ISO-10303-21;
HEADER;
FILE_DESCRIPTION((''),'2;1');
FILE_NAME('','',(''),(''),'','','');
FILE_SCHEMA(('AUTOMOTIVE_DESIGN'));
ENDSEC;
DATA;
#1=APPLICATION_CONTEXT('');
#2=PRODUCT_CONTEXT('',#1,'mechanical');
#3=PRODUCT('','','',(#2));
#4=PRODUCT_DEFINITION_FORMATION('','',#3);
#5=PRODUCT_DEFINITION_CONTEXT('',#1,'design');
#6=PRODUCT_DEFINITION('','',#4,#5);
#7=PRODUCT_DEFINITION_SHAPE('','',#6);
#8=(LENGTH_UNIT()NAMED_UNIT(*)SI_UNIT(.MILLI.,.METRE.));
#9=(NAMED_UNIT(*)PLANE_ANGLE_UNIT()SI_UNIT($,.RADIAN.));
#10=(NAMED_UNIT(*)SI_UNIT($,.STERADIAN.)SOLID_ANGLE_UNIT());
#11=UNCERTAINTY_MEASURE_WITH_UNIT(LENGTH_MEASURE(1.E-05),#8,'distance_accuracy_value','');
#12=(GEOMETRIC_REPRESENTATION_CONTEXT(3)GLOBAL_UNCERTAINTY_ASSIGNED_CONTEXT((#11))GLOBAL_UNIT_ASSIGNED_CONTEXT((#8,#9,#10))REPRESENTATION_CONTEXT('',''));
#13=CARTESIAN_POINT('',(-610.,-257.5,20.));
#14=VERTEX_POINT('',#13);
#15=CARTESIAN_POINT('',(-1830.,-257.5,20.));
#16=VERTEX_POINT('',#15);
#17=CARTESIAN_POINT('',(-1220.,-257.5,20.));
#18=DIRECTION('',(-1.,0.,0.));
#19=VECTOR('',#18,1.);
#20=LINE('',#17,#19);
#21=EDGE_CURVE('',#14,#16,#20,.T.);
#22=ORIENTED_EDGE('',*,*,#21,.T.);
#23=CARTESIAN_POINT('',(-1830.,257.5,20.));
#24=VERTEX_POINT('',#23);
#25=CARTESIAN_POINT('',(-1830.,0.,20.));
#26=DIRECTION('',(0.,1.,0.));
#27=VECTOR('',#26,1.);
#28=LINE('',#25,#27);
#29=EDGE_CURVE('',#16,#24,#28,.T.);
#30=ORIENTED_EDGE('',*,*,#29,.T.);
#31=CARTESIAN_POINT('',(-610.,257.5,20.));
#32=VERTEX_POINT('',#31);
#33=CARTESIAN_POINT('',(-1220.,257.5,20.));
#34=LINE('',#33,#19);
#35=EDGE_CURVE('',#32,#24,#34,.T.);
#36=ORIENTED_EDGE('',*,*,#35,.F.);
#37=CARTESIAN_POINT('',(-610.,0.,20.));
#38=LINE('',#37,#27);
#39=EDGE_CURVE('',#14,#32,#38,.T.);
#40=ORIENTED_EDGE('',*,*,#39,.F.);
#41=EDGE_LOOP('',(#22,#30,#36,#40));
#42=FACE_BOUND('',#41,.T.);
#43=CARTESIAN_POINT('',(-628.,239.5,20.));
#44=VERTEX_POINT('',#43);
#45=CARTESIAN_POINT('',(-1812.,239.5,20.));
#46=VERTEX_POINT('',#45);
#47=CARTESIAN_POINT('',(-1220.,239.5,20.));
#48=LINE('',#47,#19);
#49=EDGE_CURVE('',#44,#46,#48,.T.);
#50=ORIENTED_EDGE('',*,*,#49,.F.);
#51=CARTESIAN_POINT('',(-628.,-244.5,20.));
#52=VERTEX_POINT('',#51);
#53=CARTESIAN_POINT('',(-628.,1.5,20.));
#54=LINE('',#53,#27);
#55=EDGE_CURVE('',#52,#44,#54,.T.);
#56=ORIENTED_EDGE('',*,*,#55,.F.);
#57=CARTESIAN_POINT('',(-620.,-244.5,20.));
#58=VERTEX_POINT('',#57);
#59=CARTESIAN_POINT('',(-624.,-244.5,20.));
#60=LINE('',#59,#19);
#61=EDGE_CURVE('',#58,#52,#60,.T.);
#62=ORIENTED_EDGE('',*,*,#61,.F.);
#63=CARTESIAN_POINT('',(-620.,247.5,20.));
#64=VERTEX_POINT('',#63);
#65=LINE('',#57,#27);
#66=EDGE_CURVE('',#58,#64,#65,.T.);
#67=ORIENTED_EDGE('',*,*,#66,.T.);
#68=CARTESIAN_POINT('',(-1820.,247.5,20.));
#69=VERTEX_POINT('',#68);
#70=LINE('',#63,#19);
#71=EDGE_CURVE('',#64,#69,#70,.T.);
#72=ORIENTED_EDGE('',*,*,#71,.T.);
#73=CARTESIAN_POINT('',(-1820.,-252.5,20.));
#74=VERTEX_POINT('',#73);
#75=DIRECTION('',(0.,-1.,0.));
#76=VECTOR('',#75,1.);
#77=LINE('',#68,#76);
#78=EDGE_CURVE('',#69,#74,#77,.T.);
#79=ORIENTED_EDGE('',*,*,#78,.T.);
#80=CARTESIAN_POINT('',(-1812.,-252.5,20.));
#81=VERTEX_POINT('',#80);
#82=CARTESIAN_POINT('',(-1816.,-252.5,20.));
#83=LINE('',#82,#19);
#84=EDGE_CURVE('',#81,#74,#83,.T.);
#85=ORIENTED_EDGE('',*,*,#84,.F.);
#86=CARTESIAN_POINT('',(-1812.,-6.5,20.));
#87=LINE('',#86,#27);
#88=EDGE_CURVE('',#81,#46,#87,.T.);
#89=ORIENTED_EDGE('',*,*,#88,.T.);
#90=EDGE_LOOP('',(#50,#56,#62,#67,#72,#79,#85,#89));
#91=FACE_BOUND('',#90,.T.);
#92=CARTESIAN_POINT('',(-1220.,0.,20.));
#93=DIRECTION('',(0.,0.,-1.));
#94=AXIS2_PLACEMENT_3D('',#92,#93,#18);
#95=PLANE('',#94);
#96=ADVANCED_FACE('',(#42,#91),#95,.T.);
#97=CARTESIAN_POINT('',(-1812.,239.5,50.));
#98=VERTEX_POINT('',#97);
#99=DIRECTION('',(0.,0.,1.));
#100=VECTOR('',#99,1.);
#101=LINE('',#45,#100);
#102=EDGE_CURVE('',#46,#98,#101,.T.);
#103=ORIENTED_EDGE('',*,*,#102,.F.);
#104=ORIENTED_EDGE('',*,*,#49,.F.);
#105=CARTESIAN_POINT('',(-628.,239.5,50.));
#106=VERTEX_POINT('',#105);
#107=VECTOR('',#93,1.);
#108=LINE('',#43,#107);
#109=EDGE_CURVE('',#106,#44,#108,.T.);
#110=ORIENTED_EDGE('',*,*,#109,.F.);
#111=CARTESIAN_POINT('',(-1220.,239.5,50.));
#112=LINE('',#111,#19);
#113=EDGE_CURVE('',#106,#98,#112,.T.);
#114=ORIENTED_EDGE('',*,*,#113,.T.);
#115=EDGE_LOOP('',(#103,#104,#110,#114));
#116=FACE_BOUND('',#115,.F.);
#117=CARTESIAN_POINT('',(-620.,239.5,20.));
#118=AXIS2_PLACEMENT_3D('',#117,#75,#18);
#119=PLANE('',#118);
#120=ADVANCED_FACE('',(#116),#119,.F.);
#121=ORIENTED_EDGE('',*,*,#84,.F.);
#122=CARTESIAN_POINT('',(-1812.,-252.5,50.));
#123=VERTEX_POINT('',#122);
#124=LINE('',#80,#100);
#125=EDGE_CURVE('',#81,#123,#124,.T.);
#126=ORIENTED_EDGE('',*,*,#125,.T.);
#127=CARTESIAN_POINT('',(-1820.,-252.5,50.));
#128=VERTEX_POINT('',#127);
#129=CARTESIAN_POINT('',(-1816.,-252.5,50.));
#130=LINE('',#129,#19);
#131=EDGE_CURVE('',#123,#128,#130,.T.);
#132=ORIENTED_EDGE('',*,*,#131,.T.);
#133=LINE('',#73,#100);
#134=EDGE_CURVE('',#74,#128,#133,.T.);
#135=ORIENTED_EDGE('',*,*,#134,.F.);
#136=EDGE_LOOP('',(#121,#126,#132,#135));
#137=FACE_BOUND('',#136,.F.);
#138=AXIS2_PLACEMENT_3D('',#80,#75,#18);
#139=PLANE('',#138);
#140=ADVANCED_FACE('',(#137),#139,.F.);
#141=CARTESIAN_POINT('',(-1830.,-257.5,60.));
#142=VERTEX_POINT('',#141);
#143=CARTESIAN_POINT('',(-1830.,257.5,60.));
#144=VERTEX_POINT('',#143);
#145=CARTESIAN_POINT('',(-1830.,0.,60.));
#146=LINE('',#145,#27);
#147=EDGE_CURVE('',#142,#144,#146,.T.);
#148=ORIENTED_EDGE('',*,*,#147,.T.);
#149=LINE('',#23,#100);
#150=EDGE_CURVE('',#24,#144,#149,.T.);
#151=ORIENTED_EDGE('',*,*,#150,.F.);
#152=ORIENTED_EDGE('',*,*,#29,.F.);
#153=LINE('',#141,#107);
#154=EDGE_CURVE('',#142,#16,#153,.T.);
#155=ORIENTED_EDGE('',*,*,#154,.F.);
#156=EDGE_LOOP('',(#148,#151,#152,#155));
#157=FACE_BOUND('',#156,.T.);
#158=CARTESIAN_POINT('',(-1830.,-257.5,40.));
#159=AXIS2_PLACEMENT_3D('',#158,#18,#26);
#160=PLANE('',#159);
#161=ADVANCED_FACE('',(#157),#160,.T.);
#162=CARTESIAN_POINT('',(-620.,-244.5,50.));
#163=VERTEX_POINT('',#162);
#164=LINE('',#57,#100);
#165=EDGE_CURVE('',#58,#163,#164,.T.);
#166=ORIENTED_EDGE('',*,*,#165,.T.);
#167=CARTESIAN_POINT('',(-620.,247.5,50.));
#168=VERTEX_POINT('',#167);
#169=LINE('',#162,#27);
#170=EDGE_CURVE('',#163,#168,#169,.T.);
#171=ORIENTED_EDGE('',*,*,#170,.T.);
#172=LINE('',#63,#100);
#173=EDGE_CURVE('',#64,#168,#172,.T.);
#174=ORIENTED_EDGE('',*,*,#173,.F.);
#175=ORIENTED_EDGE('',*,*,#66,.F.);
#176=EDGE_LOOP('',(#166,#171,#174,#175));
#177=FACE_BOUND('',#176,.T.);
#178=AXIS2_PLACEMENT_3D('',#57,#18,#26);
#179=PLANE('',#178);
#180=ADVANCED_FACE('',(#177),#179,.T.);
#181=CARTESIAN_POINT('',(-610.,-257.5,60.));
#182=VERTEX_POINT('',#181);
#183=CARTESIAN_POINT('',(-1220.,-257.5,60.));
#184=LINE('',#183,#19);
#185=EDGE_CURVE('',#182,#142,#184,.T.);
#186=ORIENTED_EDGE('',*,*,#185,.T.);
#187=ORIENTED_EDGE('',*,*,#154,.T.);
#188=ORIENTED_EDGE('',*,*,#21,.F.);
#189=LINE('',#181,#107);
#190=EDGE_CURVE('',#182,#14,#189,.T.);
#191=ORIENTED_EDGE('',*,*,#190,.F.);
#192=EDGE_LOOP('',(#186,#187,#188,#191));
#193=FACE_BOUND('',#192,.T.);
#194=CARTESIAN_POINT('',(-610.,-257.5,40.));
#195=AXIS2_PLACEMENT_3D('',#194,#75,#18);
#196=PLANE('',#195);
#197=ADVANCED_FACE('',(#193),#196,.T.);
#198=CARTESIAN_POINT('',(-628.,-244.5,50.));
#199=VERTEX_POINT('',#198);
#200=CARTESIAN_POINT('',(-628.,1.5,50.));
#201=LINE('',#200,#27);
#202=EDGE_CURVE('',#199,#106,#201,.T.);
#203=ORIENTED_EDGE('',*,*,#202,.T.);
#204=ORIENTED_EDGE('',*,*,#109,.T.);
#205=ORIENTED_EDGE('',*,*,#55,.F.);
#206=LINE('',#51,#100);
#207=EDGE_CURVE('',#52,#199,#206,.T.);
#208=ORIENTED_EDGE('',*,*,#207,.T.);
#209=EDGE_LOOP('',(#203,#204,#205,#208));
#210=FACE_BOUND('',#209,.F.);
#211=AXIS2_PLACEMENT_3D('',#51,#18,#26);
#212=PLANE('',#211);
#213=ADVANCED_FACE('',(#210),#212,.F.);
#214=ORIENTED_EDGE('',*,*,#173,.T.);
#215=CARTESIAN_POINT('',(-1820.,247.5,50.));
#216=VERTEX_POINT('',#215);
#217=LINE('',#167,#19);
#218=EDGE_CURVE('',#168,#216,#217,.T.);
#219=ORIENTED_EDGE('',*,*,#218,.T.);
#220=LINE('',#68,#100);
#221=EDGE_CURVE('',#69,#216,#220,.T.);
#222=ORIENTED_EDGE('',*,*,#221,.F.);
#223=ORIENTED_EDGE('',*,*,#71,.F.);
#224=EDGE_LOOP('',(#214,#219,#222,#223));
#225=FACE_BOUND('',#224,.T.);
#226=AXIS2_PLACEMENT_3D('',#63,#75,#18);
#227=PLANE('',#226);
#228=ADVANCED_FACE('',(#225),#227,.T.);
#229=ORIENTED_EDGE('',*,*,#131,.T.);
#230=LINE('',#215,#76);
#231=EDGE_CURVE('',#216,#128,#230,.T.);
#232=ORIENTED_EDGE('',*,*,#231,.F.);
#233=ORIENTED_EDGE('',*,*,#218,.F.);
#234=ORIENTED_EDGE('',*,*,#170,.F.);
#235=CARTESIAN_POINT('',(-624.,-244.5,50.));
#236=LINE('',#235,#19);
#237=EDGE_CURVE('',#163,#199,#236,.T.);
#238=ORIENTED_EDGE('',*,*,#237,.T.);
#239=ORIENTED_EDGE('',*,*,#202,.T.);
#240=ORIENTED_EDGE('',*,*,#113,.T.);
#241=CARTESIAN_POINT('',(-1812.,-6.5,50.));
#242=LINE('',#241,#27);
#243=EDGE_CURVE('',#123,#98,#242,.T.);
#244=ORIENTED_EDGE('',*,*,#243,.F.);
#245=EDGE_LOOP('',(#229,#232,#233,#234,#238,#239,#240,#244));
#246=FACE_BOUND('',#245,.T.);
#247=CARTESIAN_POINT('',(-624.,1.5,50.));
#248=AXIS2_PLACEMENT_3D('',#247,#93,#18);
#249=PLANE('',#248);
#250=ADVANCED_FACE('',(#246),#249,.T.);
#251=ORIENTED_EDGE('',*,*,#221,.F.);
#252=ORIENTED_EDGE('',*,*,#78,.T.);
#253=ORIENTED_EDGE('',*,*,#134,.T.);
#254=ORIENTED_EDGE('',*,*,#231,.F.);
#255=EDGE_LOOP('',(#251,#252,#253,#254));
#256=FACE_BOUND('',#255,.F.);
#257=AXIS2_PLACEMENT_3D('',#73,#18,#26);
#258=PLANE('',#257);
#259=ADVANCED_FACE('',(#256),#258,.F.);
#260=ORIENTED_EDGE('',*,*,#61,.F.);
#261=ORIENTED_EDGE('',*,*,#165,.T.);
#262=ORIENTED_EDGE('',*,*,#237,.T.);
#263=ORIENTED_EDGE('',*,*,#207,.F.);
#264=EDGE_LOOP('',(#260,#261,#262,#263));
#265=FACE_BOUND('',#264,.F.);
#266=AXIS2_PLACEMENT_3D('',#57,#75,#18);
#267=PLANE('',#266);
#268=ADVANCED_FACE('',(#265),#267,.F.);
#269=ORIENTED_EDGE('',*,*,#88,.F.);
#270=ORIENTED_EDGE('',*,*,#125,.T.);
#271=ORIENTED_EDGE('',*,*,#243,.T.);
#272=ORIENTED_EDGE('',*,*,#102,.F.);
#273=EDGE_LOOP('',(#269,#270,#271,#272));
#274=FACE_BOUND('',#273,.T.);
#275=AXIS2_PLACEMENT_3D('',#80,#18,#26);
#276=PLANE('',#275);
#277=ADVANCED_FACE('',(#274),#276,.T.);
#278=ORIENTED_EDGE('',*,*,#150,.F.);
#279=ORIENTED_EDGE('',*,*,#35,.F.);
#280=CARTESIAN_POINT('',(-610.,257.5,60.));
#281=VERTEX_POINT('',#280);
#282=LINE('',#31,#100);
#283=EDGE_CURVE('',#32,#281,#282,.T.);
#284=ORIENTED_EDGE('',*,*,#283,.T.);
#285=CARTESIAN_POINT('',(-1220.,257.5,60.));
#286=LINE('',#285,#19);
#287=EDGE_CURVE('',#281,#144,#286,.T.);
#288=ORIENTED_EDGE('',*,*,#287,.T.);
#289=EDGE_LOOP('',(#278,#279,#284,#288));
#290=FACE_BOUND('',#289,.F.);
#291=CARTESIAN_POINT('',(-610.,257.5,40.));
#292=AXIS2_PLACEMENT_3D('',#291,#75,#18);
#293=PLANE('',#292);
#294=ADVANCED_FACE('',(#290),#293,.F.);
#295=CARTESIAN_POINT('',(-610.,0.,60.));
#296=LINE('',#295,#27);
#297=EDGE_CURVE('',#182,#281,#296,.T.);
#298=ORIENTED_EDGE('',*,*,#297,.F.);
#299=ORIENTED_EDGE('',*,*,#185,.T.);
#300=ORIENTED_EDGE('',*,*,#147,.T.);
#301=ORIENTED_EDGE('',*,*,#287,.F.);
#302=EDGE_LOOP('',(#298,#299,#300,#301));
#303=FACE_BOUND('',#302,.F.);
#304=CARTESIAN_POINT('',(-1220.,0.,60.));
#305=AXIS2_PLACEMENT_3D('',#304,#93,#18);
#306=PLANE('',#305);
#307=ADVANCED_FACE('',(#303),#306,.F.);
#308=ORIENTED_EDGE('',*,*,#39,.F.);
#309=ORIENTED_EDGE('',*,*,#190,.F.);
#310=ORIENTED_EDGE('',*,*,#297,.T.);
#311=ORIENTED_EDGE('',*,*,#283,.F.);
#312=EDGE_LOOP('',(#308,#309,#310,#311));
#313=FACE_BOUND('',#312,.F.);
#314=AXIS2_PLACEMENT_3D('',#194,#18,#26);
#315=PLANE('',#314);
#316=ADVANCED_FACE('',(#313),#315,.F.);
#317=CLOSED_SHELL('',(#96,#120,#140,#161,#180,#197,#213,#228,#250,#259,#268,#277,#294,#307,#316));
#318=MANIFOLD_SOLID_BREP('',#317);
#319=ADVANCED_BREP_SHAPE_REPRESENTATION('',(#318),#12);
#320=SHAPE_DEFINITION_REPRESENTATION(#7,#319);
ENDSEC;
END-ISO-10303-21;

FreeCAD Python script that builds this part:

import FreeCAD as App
import Part
import Sketcher

V = App.Vector


def add_polygon(sketch, points):
    """Adds a closed chain of lines whose ends are joined by coincident constraints."""
    first, n = sketch.GeometryCount, len(points)
    for a, b in zip(points, points[1:] + points[:1]):
        sketch.addGeometry(Part.LineSegment(App.Vector(*a, 0), App.Vector(*b, 0)), False)
    for i in range(n):
        sketch.addConstraint(Sketcher.Constraint("Coincident", first + i, 2, first + (i + 1) % n, 1))

doc = App.newDocument("Part")
params = doc.addObject("Spreadsheet::Sheet", "Params")
for row, (alias, value) in enumerate([
    ("sketch1_width", "1220 mm"),
    ("sketch1_height", "515 mm"),
    ("pad1_length", "40 mm"),
    ("sketch2_width", "1200 mm"),
    ("sketch2_height", "8 mm"),
    ("pocket1_length", "30 mm"),
    ("sketch3_width", "8 mm"),
    ("sketch3_height", "492 mm"),
    ("pocket2_length", "30 mm"),
    ("sketch4_width", "8 mm"),
    ("sketch4_height", "492 mm"),
    ("pocket3_length", "30 mm"),
], start=1):
    params.set(f"A{row}", alias)
    params.set(f"B{row}", "=" + value)
    params.setAlias(f"B{row}", alias)

body = doc.addObject("PartDesign::Body", "Body")

sketch1 = body.newObject("Sketcher::SketchObject", "Sketch")
sketch1.AttachmentSupport = (doc.getObject("XY_Plane"), [""])
sketch1.MapMode = "FlatFace"
add_polygon(sketch1, [(-610, 258), (-610, -258), (610, -258), (610, 258)])
sketch1.addConstraint([
    Sketcher.Constraint("Vertical", 0),
    Sketcher.Constraint("Horizontal", 1),
    Sketcher.Constraint("Vertical", 2),
    Sketcher.Constraint("Horizontal", 3),
    Sketcher.Constraint("Symmetric", 0, 2, 2, 2, -1, 1),
    Sketcher.Constraint("DistanceX", 1, 1, 1, 2, 1220.0),
    Sketcher.Constraint("DistanceY", 0, 2, 0, 1, 515.0),
])
sketch1.setExpression("Constraints[9]", "Params.sketch1_width")
sketch1.setExpression("Constraints[10]", "Params.sketch1_height")
pad1 = body.newObject("PartDesign::Pad", "Pad")
pad1.Profile = sketch1
pad1.setExpression("Length", "Params.pad1_length")
pad1.Midplane = True

sketch2 = body.newObject("Sketcher::SketchObject", "Sketch001")
sketch2.AttachmentSupport = (doc.getObject("XY_Plane"), [""])
sketch2.MapMode = "FlatFace"
sketch2.AttachmentOffset = App.Placement(V(0, 0, 20), App.Rotation())
add_polygon(sketch2, [(-600, 248), (-600, 240), (600, 240), (600, 248)])
sketch2.addConstraint([
    Sketcher.Constraint("Vertical", 0),
    Sketcher.Constraint("Horizontal", 1),
    Sketcher.Constraint("Vertical", 2),
    Sketcher.Constraint("Horizontal", 3),
    Sketcher.Constraint("DistanceX", 1, 1, 1, 2, 1200.0),
    Sketcher.Constraint("DistanceY", 0, 2, 0, 1, 8.0),
    Sketcher.Constraint("DistanceX", 0, 2, -1, 1, 600.0),
    Sketcher.Constraint("DistanceY", -1, 1, 0, 2, 239.5),
])
sketch2.setExpression("Constraints[8]", "Params.sketch2_width")
sketch2.setExpression("Constraints[9]", "Params.sketch2_height")
pocket1 = body.newObject("PartDesign::Pocket", "Pocket")
pocket1.Profile = sketch2
pocket1.setExpression("Length", "Params.pocket1_length")

sketch3 = body.newObject("Sketcher::SketchObject", "Sketch002")
sketch3.AttachmentSupport = (doc.getObject("XY_Plane"), [""])
sketch3.MapMode = "FlatFace"
sketch3.AttachmentOffset = App.Placement(V(0, 0, 20), App.Rotation())
add_polygon(sketch3, [(-600, 248), (-600, -244), (-592, -244), (-592, 248)])
sketch3.addConstraint([
    Sketcher.Constraint("Vertical", 0),
    Sketcher.Constraint("Horizontal", 1),
    Sketcher.Constraint("Vertical", 2),
    Sketcher.Constraint("Horizontal", 3),
    Sketcher.Constraint("DistanceX", 1, 1, 1, 2, 8.0),
    Sketcher.Constraint("DistanceY", 0, 2, 0, 1, 492.0),
    Sketcher.Constraint("DistanceX", 0, 2, -1, 1, 600.0),
    Sketcher.Constraint("DistanceY", 0, 2, -1, 1, 244.5),
])
sketch3.setExpression("Constraints[8]", "Params.sketch3_width")
sketch3.setExpression("Constraints[9]", "Params.sketch3_height")
pocket2 = body.newObject("PartDesign::Pocket", "Pocket001")
pocket2.Profile = sketch3
pocket2.setExpression("Length", "Params.pocket2_length")

sketch4 = body.newObject("Sketcher::SketchObject", "Sketch003")
sketch4.AttachmentSupport = (doc.getObject("XY_Plane"), [""])
sketch4.MapMode = "FlatFace"
sketch4.AttachmentOffset = App.Placement(V(0, 0, 20), App.Rotation())
add_polygon(sketch4, [(592, 240), (592, -252), (600, -252), (600, 240)])
sketch4.addConstraint([
    Sketcher.Constraint("Vertical", 0),
    Sketcher.Constraint("Horizontal", 1),
    Sketcher.Constraint("Vertical", 2),
    Sketcher.Constraint("Horizontal", 3),
    Sketcher.Constraint("DistanceX", 1, 1, 1, 2, 8.0),
    Sketcher.Constraint("DistanceY", 0, 2, 0, 1, 492.0),
    Sketcher.Constraint("DistanceX", -1, 1, 0, 2, 592.0),
    Sketcher.Constraint("DistanceY", 0, 2, -1, 1, 252.5),
])
sketch4.setExpression("Constraints[8]", "Params.sketch4_width")
sketch4.setExpression("Constraints[9]", "Params.sketch4_height")
pocket3 = body.newObject("PartDesign::Pocket", "Pocket002")
pocket3.Profile = sketch4
pocket3.setExpression("Length", "Params.pocket3_length")
body2 = doc.addObject("PartDesign::Body", "Body001")
doc.recompute()

body.Placement = App.Placement(V(-1220, 0, 40), App.Rotation(V(0, 1, 0), 180))
boolean = body2.newObject("PartDesign::Boolean", "Boolean")
boolean.Type = "Fuse"
boolean.addObjects([body])

doc.recompute()
